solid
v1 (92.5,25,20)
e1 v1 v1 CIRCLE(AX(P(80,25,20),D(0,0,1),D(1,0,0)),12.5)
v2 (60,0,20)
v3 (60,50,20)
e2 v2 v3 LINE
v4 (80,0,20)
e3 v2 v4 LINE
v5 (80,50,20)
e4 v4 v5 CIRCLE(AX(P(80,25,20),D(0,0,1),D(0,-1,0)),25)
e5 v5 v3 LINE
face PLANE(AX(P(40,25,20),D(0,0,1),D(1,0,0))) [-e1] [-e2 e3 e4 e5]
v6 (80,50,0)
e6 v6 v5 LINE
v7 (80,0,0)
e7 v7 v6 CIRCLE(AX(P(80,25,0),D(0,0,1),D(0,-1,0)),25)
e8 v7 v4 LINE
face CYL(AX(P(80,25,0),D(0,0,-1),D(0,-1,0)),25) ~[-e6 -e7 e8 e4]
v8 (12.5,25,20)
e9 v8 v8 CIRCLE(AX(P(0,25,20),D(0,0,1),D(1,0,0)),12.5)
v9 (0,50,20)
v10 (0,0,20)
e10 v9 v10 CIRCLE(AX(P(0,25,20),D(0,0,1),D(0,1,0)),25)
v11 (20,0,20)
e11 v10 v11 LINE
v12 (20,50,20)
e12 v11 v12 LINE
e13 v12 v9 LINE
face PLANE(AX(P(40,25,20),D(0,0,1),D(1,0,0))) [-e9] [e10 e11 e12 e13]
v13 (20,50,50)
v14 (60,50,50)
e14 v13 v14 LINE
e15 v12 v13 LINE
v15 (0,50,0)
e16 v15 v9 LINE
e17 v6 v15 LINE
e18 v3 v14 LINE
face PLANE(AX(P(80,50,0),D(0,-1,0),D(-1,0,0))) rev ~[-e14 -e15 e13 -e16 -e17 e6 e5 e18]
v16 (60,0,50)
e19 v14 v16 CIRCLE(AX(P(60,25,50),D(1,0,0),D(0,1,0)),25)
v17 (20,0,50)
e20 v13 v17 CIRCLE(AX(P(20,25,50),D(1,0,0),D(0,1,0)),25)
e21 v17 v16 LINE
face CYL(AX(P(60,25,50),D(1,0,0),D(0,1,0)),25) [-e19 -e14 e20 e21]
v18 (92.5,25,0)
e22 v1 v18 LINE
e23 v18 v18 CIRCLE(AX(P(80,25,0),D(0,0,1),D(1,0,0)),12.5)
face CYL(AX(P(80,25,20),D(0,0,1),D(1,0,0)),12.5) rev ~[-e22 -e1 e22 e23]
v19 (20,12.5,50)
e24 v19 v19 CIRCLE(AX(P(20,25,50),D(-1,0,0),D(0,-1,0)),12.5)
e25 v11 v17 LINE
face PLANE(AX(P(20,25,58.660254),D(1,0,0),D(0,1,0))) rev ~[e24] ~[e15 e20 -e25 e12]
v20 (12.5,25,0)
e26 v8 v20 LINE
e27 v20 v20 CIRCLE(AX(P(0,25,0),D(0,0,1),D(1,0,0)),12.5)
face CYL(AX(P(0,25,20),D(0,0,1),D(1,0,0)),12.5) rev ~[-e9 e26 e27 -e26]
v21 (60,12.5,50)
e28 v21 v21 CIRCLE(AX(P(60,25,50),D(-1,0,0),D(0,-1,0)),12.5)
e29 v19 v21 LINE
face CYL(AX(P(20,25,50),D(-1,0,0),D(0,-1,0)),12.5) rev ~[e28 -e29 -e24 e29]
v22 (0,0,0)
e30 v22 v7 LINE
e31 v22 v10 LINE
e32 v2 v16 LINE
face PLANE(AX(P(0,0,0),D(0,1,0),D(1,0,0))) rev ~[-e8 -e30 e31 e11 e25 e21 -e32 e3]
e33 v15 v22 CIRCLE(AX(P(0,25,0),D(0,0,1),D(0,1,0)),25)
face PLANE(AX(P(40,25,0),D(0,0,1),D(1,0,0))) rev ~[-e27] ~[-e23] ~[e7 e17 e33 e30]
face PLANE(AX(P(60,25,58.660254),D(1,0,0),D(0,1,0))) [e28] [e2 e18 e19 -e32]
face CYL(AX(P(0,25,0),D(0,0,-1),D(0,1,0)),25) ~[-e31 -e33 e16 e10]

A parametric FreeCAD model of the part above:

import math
import FreeCAD as App
import Part
import Sketcher
from FreeCAD import Vector

doc = App.newDocument("Part")
body = doc.addObject("PartDesign::Body", "Body")

sketch1 = doc.addObject("Sketcher::SketchObject", "Sketch")
body.addObject(sketch1)
sketch1.AttachmentSupport = (doc.XY_Plane, [""])
sketch1.MapMode = "FlatFace"
sketch1.addGeometry([
    Part.LineSegment(Vector(80, 50, 0), Vector(0, 50, 0)),
    Part.ArcOfCircle(Part.Circle(Vector(0, 25, 0), Vector(0, 0, 1), 25), math.radians(90), math.radians(270)),
    Part.LineSegment(Vector(0, 0, 0), Vector(80, 0, 0)),
    Part.ArcOfCircle(Part.Circle(Vector(80, 25, 0), Vector(0, 0, 1), 25), math.radians(-90), math.radians(90)),
], False)
sketch1.addConstraint([
    Sketcher.Constraint("Tangent", 0, 2, 1, 1),
    Sketcher.Constraint("Tangent", 1, 2, 2, 1),
    Sketcher.Constraint("Tangent", 2, 2, 3, 1),
    Sketcher.Constraint("Tangent", 3, 2, 0, 1),
    Sketcher.Constraint("Horizontal", 0),
    Sketcher.Constraint("Horizontal", 2),
    Sketcher.Constraint("Coincident", 1, 2, -1, 1),
    Sketcher.Constraint("Radius", 1, 25.0),
    Sketcher.Constraint("DistanceX", 0, 2, 0, 1, 80.0),
])
pad1 = doc.addObject("PartDesign::Pad", "Pad")
body.addObject(pad1)
pad1.Profile = sketch1
pad1.Length = 20

sketch2 = doc.addObject("Sketcher::SketchObject", "Sketch001")
body.addObject(sketch2)
sketch2.AttachmentSupport = (doc.XY_Plane, [""])
sketch2.MapMode = "FlatFace"
sketch2.AttachmentOffset = App.Placement(Vector(0, 0, 20), App.Rotation())
sketch2.addGeometry([
    Part.LineSegment(Vector(20, 50, 0), Vector(20, 0, 0)),
    Part.LineSegment(Vector(20, 0, 0), Vector(60, 0, 0)),
    Part.LineSegment(Vector(60, 0, 0), Vector(60, 50, 0)),
    Part.LineSegment(Vector(60, 50, 0), Vector(20, 50, 0)),
], False)
sketch2.addConstraint([
    Sketcher.Constraint("Coincident", 0, 2, 1, 1),
    Sketcher.Constraint("Coincident", 1, 2, 2, 1),
    Sketcher.Constraint("Coincident", 2, 2, 3, 1),
    Sketcher.Constraint("Coincident", 3, 2, 0, 1),
    Sketcher.Constraint("Vertical", 0),
    Sketcher.Constraint("Horizontal", 1),
    Sketcher.Constraint("Vertical", 2),
    Sketcher.Constraint("Horizontal", 3),
    Sketcher.Constraint("PointOnObject", 0, 2, -1),
    Sketcher.Constraint("DistanceX", 1, 1, 1, 2, 40.0),
    Sketcher.Constraint("DistanceY", 0, 2, 0, 1, 50.0),
    Sketcher.Constraint("DistanceX", -1, 1, 0, 2, 20.0),
])
pad2 = doc.addObject("PartDesign::Pad", "Pad001")
body.addObject(pad2)
pad2.Profile = sketch2
pad2.Length = 30

sketch3 = doc.addObject("Sketcher::SketchObject", "Sketch002")
body.addObject(sketch3)
sketch3.AttachmentSupport = (doc.YZ_Plane, [""])
sketch3.MapMode = "FlatFace"
sketch3.AttachmentOffset = App.Placement(Vector(0, 0, 60), App.Rotation())
sketch3.addGeometry([
    Part.LineSegment(Vector(0, 50, 0), Vector(50, 50, 0)),
    Part.ArcOfCircle(Part.Circle(Vector(25, 50, 0), Vector(0, 0, 1), 25), math.radians(0), math.radians(180)),
], False)
sketch3.addConstraint([
    Sketcher.Constraint("Coincident", 0, 1, 1, 2),
    Sketcher.Constraint("Coincident", 1, 1, 0, 2),
    Sketcher.Constraint("Horizontal", 0),
    Sketcher.Constraint("PointOnObject", 0, 1, -2),
    Sketcher.Constraint("Horizontal", 1, 3, 0, 1),
    Sketcher.Constraint("Radius", 1, 25.0),
    Sketcher.Constraint("DistanceY", -1, 1, 1, 3, 50.0),
])
pad3 = doc.addObject("PartDesign::Pad", "Pad002")
body.addObject(pad3)
pad3.Profile = sketch3
pad3.Length = 40
pad3.Reversed = True

sketch4 = doc.addObject("Sketcher::SketchObject", "Sketch003")
body.addObject(sketch4)
sketch4.AttachmentSupport = (doc.YZ_Plane, [""])
sketch4.MapMode = "FlatFace"
sketch4.AttachmentOffset = App.Placement(Vector(0, 0, 20), App.Rotation())
sketch4.addGeometry(Part.Circle(Vector(25, 50, 0), Vector(0, 0, 1), 12), False)
sketch4.addConstraint([
    Sketcher.Constraint("Diameter", 0, 25.0),
    Sketcher.Constraint("DistanceX", -1, 1, 0, 3, 25.0),
    Sketcher.Constraint("DistanceY", -1, 1, 0, 3, 50.0),
])
pocket1 = doc.addObject("PartDesign::Pocket", "Pocket")
body.addObject(pocket1)
pocket1.Profile = sketch4
pocket1.Type = "ThroughAll"
pocket1.Reversed = True

sketch5 = doc.addObject("Sketcher::SketchObject", "Sketch004")
body.addObject(sketch5)
sketch5.AttachmentSupport = (doc.XY_Plane, [""])
sketch5.MapMode = "FlatFace"
sketch5.AttachmentOffset = App.Placement(Vector(0, 0, 20), App.Rotation())
sketch5.addGeometry([
    Part.Circle(Vector(0, 25, 0), Vector(0, 0, 1), 12),
    Part.Circle(Vector(80, 25, 0), Vector(0, 0, 1), 12),
], False)
sketch5.addConstraint([
    Sketcher.Constraint("Equal", 0, 1),
    Sketcher.Constraint("PointOnObject", 0, 3, -2),
    Sketcher.Constraint("Horizontal", 0, 3, 1, 3),
    Sketcher.Constraint("Diameter", 0, 25.0),
    Sketcher.Constraint("DistanceY", -1, 1, 0, 3, 25.0),
    Sketcher.Constraint("DistanceX", -1, 1, 1, 3, 80.0),
])
pocket2 = doc.addObject("PartDesign::Pocket", "Pocket001")
body.addObject(pocket2)
pocket2.Profile = sketch5
pocket2.Type = "ThroughAll"

doc.recompute()
